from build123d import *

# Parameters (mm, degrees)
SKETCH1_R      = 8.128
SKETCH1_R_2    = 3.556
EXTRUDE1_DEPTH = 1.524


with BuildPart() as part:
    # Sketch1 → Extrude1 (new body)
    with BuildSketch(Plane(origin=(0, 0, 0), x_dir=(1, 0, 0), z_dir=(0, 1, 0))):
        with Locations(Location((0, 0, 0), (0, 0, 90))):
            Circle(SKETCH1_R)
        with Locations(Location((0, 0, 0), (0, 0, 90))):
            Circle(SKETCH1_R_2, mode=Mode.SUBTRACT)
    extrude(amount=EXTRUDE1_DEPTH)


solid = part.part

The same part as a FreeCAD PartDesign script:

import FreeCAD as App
import Part
import Sketcher

V = App.Vector
Q = App.Units.Quantity

doc = App.newDocument("Part")
body = doc.addObject("PartDesign::Body", "Body")

# Sketch on XZ plane
sketch1 = body.newObject("Sketcher::SketchObject", "Sketch")
sketch1.AttachmentSupport = (doc.getObject("XZ_Plane"), [""])
sketch1.MapMode = "FlatFace"
sketch1.addGeometry([
    Part.Circle(V(0, 0, 0), V(0, 0, 1), 8.1),
    Part.Circle(V(0, 0, 0), V(0, 0, 1), 3.6),
], False)
sketch1.addConstraint([
    Sketcher.Constraint("Coincident", 0, 3, -1, 1),
    Sketcher.Constraint("Coincident", 1, 3, -1, 1),
    Sketcher.Constraint("Diameter", 0, Q("0.64 in")),
    Sketcher.Constraint("Diameter", 1, Q("0.28 in")),
])
pad1 = body.newObject("PartDesign::Pad", "Pad")
pad1.Profile = sketch1
pad1.Length = Q("0.06 in")
pad1.Reversed = True

doc.recompute()
